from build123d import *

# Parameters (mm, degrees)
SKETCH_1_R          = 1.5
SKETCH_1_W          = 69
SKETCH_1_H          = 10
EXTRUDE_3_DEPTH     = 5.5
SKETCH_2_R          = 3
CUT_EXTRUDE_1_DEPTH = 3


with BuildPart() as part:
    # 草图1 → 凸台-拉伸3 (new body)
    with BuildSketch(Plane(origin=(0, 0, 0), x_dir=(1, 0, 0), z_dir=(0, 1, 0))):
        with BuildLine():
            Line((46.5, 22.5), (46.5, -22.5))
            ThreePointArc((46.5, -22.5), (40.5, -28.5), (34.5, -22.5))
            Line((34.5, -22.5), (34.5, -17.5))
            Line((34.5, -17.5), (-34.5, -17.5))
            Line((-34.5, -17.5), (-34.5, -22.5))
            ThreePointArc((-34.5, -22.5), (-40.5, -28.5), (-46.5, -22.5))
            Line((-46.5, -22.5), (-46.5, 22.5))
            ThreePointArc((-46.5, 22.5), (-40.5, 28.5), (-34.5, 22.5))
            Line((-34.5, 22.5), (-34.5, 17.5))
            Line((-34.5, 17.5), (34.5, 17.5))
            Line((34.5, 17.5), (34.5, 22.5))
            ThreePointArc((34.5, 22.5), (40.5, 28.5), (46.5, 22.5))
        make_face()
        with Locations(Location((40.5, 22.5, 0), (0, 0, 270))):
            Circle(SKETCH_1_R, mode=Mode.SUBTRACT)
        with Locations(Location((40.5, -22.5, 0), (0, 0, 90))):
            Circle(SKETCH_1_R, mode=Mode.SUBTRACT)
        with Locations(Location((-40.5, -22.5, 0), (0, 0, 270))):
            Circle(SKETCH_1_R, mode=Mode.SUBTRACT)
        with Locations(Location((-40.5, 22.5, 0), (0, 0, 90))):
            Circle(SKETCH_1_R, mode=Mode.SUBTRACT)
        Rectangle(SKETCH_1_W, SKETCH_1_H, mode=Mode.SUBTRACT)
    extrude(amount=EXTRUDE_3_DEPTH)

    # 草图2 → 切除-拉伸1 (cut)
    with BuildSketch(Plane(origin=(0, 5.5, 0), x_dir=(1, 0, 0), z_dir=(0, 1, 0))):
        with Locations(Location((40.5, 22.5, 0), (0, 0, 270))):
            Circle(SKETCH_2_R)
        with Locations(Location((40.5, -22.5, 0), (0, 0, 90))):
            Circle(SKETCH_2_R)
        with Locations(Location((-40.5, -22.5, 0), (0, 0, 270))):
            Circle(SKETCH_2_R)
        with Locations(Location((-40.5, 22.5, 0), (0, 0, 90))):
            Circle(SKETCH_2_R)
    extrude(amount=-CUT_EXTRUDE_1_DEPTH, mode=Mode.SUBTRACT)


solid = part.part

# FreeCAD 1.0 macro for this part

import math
import FreeCAD as App
import Part
import Sketcher

V = App.Vector

doc = App.newDocument("Part")
body = doc.addObject("PartDesign::Body", "Body")

sketch1 = body.newObject("Sketcher::SketchObject", "Sketch")
sketch1.AttachmentSupport = (doc.getObject("XZ_Plane"), [""])
sketch1.MapMode = "FlatFace"
sketch1.addGeometry(Part.LineSegment(V(46.5, 22.5, 0), V(46.5, -22.5, 0)), False)
sketch1.addGeometry(Part.ArcOfCircle(Part.Circle(V(40.5, -22.5, 0), V(0, 0, 1), 6), math.radians(180), math.radians(360)), False)
sketch1.addGeometry(Part.LineSegment(V(34.5, -22.5, 0), V(34.5, -17.5, 0)), False)
sketch1.addGeometry(Part.LineSegment(V(34.5, -17.5, 0), V(-34.5, -17.5, 0)), False)
sketch1.addGeometry(Part.LineSegment(V(-34.5, -17.5, 0), V(-34.5, -22.5, 0)), False)
sketch1.addGeometry(Part.ArcOfCircle(Part.Circle(V(-40.5, -22.5, 0), V(0, 0, 1), 6), math.radians(180), math.radians(360)), False)
sketch1.addGeometry(Part.LineSegment(V(-46.5, -22.5, 0), V(-46.5, 22.5, 0)), False)
sketch1.addGeometry(Part.ArcOfCircle(Part.Circle(V(-40.5, 22.5, 0), V(0, 0, 1), 6), math.radians(0), math.radians(180)), False)
sketch1.addGeometry(Part.LineSegment(V(-34.5, 22.5, 0), V(-34.5, 17.5, 0)), False)
sketch1.addGeometry(Part.LineSegment(V(-34.5, 17.5, 0), V(34.5, 17.5, 0)), False)
sketch1.addGeometry(Part.LineSegment(V(34.5, 17.5, 0), V(34.5, 22.5, 0)), False)
sketch1.addGeometry(Part.ArcOfCircle(Part.Circle(V(40.5, 22.5, 0), V(0, 0, 1), 6), math.radians(0), math.radians(180)), False)
sketch1.addGeometry(Part.Circle(V(40.5, 22.5, 0), V(0, 0, 1), 1.5), False)
sketch1.addGeometry(Part.Circle(V(-40.5, 22.5, 0), V(0, 0, 1), 1.5), False)
sketch1.addGeometry(Part.Circle(V(40.5, -22.5, 0), V(0, 0, 1), 1.5), False)
sketch1.addGeometry(Part.LineSegment(V(-34.5, 5, 0), V(-34.5, -5, 0)), False)
sketch1.addGeometry(Part.LineSegment(V(-34.5, -5, 0), V(34.5, -5, 0)), False)
sketch1.addGeometry(Part.LineSegment(V(34.5, -5, 0), V(34.5, 5, 0)), False)
sketch1.addGeometry(Part.LineSegment(V(34.5, 5, 0), V(-34.5, 5, 0)), False)
sketch1.addGeometry(Part.Circle(V(-40.5, -22.5, 0), V(0, 0, 1), 1.5), False)
sketch1.addConstraint(Sketcher.Constraint("Tangent", 0, 2, 1, 2))
sketch1.addConstraint(Sketcher.Constraint("Tangent", 1, 1, 2, 1))
sketch1.addConstraint(Sketcher.Constraint("Coincident", 2, 2, 3, 1))
sketch1.addConstraint(Sketcher.Constraint("Coincident", 3, 2, 4, 1))
sketch1.addConstraint(Sketcher.Constraint("Tangent", 4, 2, 5, 2))
sketch1.addConstraint(Sketcher.Constraint("Tangent", 5, 1, 6, 1))
sketch1.addConstraint(Sketcher.Constraint("Tangent", 6, 2, 7, 2))
sketch1.addConstraint(Sketcher.Constraint("Tangent", 7, 1, 8, 1))
sketch1.addConstraint(Sketcher.Constraint("Coincident", 8, 2, 9, 1))
sketch1.addConstraint(Sketcher.Constraint("Coincident", 9, 2, 10, 1))
sketch1.addConstraint(Sketcher.Constraint("Tangent", 10, 2, 11, 2))
sketch1.addConstraint(Sketcher.Constraint("Tangent", 11, 1, 0, 1))
sketch1.addConstraint(Sketcher.Constraint("Coincident", 15, 2, 16, 1))
sketch1.addConstraint(Sketcher.Constraint("Coincident", 16, 2, 17, 1))
sketch1.addConstraint(Sketcher.Constraint("Coincident", 17, 2, 18, 1))
sketch1.addConstraint(Sketcher.Constraint("Coincident", 18, 2, 15, 1))
sketch1.addConstraint(Sketcher.Constraint("Vertical", 0))
sketch1.addConstraint(Sketcher.Constraint("Vertical", 2))
sketch1.addConstraint(Sketcher.Constraint("Horizontal", 3))
sketch1.addConstraint(Sketcher.Constraint("Vertical", 4))
sketch1.addConstraint(Sketcher.Constraint("Vertical", 6))
sketch1.addConstraint(Sketcher.Constraint("Vertical", 8))
sketch1.addConstraint(Sketcher.Constraint("Horizontal", 9))
sketch1.addConstraint(Sketcher.Constraint("Vertical", 10))
sketch1.addConstraint(Sketcher.Constraint("Vertical", 15))
sketch1.addConstraint(Sketcher.Constraint("Horizontal", 16))
sketch1.addConstraint(Sketcher.Constraint("Vertical", 17))
sketch1.addConstraint(Sketcher.Constraint("Horizontal", 18))
sketch1.addConstraint(Sketcher.Constraint("Coincident", 12, 3, 11, 3))
sketch1.addConstraint(Sketcher.Constraint("Coincident", 13, 3, 7, 3))
sketch1.addConstraint(Sketcher.Constraint("Coincident", 14, 3, 1, 3))
sketch1.addConstraint(Sketcher.Constraint("Coincident", 19, 3, 5, 3))
sketch1.addConstraint(Sketcher.Constraint("Equal", 1, 5))
sketch1.addConstraint(Sketcher.Constraint("Equal", 5, 7))
sketch1.addConstraint(Sketcher.Constraint("Equal", 7, 11))
sketch1.addConstraint(Sketcher.Constraint("Equal", 12, 13))
sketch1.addConstraint(Sketcher.Constraint("Equal", 13, 14))
sketch1.addConstraint(Sketcher.Constraint("Equal", 14, 19))
sketch1.addConstraint(Sketcher.Constraint("Symmetric", 1, 3, 7, 3, -1, 1))
sketch1.addConstraint(Sketcher.Constraint("Symmetric", 15, 2, 17, 2, -1, 1))
sketch1.addConstraint(Sketcher.Constraint("Horizontal", 1, 3, 5, 3))
sketch1.addConstraint(Sketcher.Constraint("Horizontal", 7, 3, 11, 3))
sketch1.addConstraint(Sketcher.Constraint("Vertical", 8, 2, 15, 2))
sketch1.addConstraint(Sketcher.Constraint("Equal", 4, 8))
sketch1.addConstraint(Sketcher.Constraint("Diameter", 12, 3.0))
sketch1.addConstraint(Sketcher.Constraint("Radius", 1, 6.0))
sketch1.addConstraint(Sketcher.Constraint("DistanceX", 3, 2, 3, 1, 69.0))
sketch1.addConstraint(Sketcher.Constraint("DistanceY", 0, 2, 0, 1, 45.0))
sketch1.addConstraint(Sketcher.Constraint("DistanceY", 2, 1, 2, 2, 5.0))
sketch1.addConstraint(Sketcher.Constraint("DistanceY", 15, 2, 15, 1, 10.0))
pad1 = body.newObject("PartDesign::Pad", "Pad")
pad1.Profile = sketch1
pad1.Length = 5.5
pad1.Reversed = True

sketch2 = body.newObject("Sketcher::SketchObject", "Sketch001")
sketch2.AttachmentSupport = (doc.getObject("XZ_Plane"), [""])
sketch2.MapMode = "FlatFace"
sketch2.AttachmentOffset = App.Placement(V(0, 0, -5.5), App.Rotation())
sketch2.addGeometry(Part.Circle(V(40.5, -22.5, 0), V(0, 0, 1), 3), False)
sketch2.addGeometry(Part.Circle(V(40.5, 22.5, 0), V(0, 0, 1), 3), False)
sketch2.addGeometry(Part.Circle(V(-40.5, 22.5, 0), V(0, 0, 1), 3), False)
sketch2.addGeometry(Part.Circle(V(-40.5, -22.5, 0), V(0, 0, 1), 3), False)
sketch2.addConstraint(Sketcher.Constraint("Equal", 0, 1))
sketch2.addConstraint(Sketcher.Constraint("Equal", 1, 2))
sketch2.addConstraint(Sketcher.Constraint("Equal", 2, 3))
sketch2.addConstraint(Sketcher.Constraint("Symmetric", 0, 3, 2, 3, -1, 1))
sketch2.addConstraint(Sketcher.Constraint("Symmetric", 1, 3, 3, 3, -1, 1))
sketch2.addConstraint(Sketcher.Constraint("Symmetric", 1, 3, 2, 3, -2))
sketch2.addConstraint(Sketcher.Constraint("Diameter", 0, 6.0))
sketch2.addConstraint(Sketcher.Constraint("DistanceY", 0, 3, 1, 3, 45.0))
sketch2.addConstraint(Sketcher.Constraint("DistanceX", 2, 3, 1, 3, 81.0))
pocket1 = body.newObject("PartDesign::Pocket", "Pocket")
pocket1.Profile = sketch2
pocket1.Length = 3
pocket1.Reversed = True

doc.recompute()
